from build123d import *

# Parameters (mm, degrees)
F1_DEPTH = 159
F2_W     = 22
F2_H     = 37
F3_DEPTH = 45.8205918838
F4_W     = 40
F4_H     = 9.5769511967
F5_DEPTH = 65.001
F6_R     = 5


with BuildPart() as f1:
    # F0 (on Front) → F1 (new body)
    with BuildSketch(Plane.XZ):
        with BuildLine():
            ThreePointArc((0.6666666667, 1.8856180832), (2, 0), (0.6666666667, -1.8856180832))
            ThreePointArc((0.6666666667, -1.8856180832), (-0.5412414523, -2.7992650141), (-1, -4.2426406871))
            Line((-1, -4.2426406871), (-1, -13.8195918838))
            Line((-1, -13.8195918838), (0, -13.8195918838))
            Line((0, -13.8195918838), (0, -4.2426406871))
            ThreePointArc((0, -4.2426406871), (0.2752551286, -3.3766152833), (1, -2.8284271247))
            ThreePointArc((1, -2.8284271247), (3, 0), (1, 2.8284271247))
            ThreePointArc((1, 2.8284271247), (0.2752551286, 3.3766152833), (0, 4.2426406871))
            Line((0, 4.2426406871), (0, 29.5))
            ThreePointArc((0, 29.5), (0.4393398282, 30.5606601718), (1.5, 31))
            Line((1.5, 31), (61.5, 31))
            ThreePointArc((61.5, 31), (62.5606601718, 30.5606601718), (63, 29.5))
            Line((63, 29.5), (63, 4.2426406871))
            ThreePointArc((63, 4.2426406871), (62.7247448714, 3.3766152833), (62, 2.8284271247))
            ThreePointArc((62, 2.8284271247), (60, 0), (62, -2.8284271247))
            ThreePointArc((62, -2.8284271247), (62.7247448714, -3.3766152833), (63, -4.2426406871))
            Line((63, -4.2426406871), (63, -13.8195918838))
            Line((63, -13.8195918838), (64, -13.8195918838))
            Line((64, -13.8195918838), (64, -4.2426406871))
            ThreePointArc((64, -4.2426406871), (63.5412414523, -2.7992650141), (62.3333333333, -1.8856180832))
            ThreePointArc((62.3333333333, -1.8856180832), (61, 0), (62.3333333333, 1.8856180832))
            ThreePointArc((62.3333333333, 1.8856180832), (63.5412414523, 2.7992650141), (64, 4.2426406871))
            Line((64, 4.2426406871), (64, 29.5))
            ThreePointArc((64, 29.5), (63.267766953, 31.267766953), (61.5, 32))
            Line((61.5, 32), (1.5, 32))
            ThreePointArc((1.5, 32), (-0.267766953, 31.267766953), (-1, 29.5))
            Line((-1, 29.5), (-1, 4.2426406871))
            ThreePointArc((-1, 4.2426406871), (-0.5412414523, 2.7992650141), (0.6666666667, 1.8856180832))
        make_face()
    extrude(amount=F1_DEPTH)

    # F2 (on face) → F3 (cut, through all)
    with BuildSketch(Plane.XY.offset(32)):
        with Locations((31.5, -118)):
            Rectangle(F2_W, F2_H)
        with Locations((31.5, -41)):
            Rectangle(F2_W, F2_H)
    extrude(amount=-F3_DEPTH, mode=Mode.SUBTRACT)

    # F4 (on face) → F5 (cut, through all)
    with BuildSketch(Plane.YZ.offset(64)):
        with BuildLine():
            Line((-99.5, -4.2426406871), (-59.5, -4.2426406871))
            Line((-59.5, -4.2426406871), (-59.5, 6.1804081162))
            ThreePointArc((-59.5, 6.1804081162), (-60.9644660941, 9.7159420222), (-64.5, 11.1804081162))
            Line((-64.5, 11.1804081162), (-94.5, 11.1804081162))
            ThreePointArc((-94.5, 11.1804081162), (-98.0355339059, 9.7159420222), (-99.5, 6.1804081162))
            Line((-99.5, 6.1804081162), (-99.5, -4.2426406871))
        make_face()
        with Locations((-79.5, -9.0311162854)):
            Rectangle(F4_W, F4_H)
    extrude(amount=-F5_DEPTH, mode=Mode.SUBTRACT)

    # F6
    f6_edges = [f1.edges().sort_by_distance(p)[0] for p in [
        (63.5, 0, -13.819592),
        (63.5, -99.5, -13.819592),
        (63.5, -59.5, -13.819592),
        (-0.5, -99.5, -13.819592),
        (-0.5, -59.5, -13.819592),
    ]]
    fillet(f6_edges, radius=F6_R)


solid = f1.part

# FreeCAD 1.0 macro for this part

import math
import FreeCAD as App
import Part
import Sketcher
Q = App.Units.Quantity


def edges_at(feature, points):
    """Names of the edges that pass closest to the given points."""
    edges = feature.Shape.Edges
    near = lambda p: min(range(len(edges)), key=lambda i: edges[i].distToShape(Part.Vertex(*p))[0])
    return sorted({f"Edge{near(p) + 1}" for p in points})


def add_polygon(sketch, points):
    """Adds a closed chain of lines whose ends are joined by coincident constraints."""
    first, n = sketch.GeometryCount, len(points)
    for a, b in zip(points, points[1:] + points[:1]):
        sketch.addGeometry(Part.LineSegment(App.Vector(*a, 0), App.Vector(*b, 0)), False)
    for i in range(n):
        sketch.addConstraint(Sketcher.Constraint("Coincident", first + i, 2, first + (i + 1) % n, 1))

doc = App.newDocument("Part")
body = doc.addObject("PartDesign::Body", "Body")

sketch1 = doc.addObject("Sketcher::SketchObject", "Sketch")
body.addObject(sketch1)
sketch1.AttachmentSupport = (doc.XZ_Plane, [""])
sketch1.MapMode = "FlatFace"
sketch1.addGeometry([
    Part.ArcOfCircle(Part.Circle(App.Vector(0, 0, 0), App.Vector(0, 0, 1), 2), math.radians(-71), math.radians(71)),
    Part.ArcOfCircle(Part.Circle(App.Vector(1.5, -4.2, 0), App.Vector(0, 0, 1), 2.5), math.radians(109), math.radians(180)),
    Part.LineSegment(App.Vector(-1, -4.2, 0), App.Vector(-1, -13.8, 0)),
    Part.LineSegment(App.Vector(-1, -13.8, 0), App.Vector(0, -13.8, 0)),
    Part.LineSegment(App.Vector(0, -13.8, 0), App.Vector(0, -4.2, 0)),
    Part.ArcOfCircle(Part.Circle(App.Vector(1.5, -4.2, 0), App.Vector(0, 0, 1), 1.5), math.radians(109), math.radians(180)),
    Part.ArcOfCircle(Part.Circle(App.Vector(0, 0, 0), App.Vector(0, 0, 1), 3), math.radians(-71), math.radians(71)),
    Part.ArcOfCircle(Part.Circle(App.Vector(1.5, 4.2, 0), App.Vector(0, 0, 1), 1.5), math.radians(180), math.radians(251)),
    Part.LineSegment(App.Vector(0, 4.2, 0), App.Vector(0, 29.5, 0)),
    Part.ArcOfCircle(Part.Circle(App.Vector(1.5, 29.5, 0), App.Vector(0, 0, 1), 1.5), math.radians(90), math.radians(180)),
    Part.LineSegment(App.Vector(1.5, 31, 0), App.Vector(61.5, 31, 0)),
    Part.ArcOfCircle(Part.Circle(App.Vector(61.5, 29.5, 0), App.Vector(0, 0, 1), 1.5), math.radians(0), math.radians(90)),
    Part.LineSegment(App.Vector(63, 29.5, 0), App.Vector(63, 4.2, 0)),
    Part.ArcOfCircle(Part.Circle(App.Vector(61.5, 4.2, 0), App.Vector(0, 0, 1), 1.5), math.radians(-71), math.radians(0)),
    Part.ArcOfCircle(Part.Circle(App.Vector(63, 0, 0), App.Vector(0, 0, 1), 3), math.radians(109), math.radians(251)),
    Part.ArcOfCircle(Part.Circle(App.Vector(61.5, -4.2, 0), App.Vector(0, 0, 1), 1.5), math.radians(0), math.radians(71)),
    Part.LineSegment(App.Vector(63, -4.2, 0), App.Vector(63, -13.8, 0)),
    Part.LineSegment(App.Vector(63, -13.8, 0), App.Vector(64, -13.8, 0)),
    Part.LineSegment(App.Vector(64, -13.8, 0), App.Vector(64, -4.2, 0)),
    Part.ArcOfCircle(Part.Circle(App.Vector(61.5, -4.2, 0), App.Vector(0, 0, 1), 2.5), math.radians(0), math.radians(71)),
    Part.ArcOfCircle(Part.Circle(App.Vector(63, 0, 0), App.Vector(0, 0, 1), 2), math.radians(109), math.radians(251)),
    Part.ArcOfCircle(Part.Circle(App.Vector(61.5, 4.2, 0), App.Vector(0, 0, 1), 2.5), math.radians(-71), math.radians(0)),
    Part.LineSegment(App.Vector(64, 4.2, 0), App.Vector(64, 29.5, 0)),
    Part.ArcOfCircle(Part.Circle(App.Vector(61.5, 29.5, 0), App.Vector(0, 0, 1), 2.5), math.radians(0), math.radians(90)),
    Part.LineSegment(App.Vector(61.5, 32, 0), App.Vector(1.5, 32, 0)),
    Part.ArcOfCircle(Part.Circle(App.Vector(1.5, 29.5, 0), App.Vector(0, 0, 1), 2.5), math.radians(90), math.radians(180)),
    Part.LineSegment(App.Vector(-1, 29.5, 0), App.Vector(-1, 4.2, 0)),
    Part.ArcOfCircle(Part.Circle(App.Vector(1.5, 4.2, 0), App.Vector(0, 0, 1), 2.5), math.radians(180), math.radians(251)),
], False)
sketch1.addConstraint([
    Sketcher.Constraint("Tangent", 0, 1, 1, 1),
    Sketcher.Constraint("Tangent", 1, 2, 2, 1),
    Sketcher.Constraint("Coincident", 2, 2, 3, 1),
    Sketcher.Constraint("Coincident", 3, 2, 4, 1),
    Sketcher.Constraint("Tangent", 4, 2, 5, 2),
    Sketcher.Constraint("Tangent", 5, 1, 6, 1),
    Sketcher.Constraint("Tangent", 6, 2, 7, 2),
    Sketcher.Constraint("Tangent", 7, 1, 8, 1),
    Sketcher.Constraint("Tangent", 8, 2, 9, 2),
    Sketcher.Constraint("Tangent", 9, 1, 10, 1),
    Sketcher.Constraint("Tangent", 10, 2, 11, 2),
    Sketcher.Constraint("Tangent", 11, 1, 12, 1),
    Sketcher.Constraint("Tangent", 12, 2, 13, 2),
    Sketcher.Constraint("Tangent", 13, 1, 14, 1),
    Sketcher.Constraint("Tangent", 14, 2, 15, 2),
    Sketcher.Constraint("Tangent", 15, 1, 16, 1),
    Sketcher.Constraint("Coincident", 16, 2, 17, 1),
    Sketcher.Constraint("Coincident", 17, 2, 18, 1),
    Sketcher.Constraint("Tangent", 18, 2, 19, 1),
    Sketcher.Constraint("Tangent", 19, 2, 20, 2),
    Sketcher.Constraint("Tangent", 20, 1, 21, 1),
    Sketcher.Constraint("Tangent", 21, 2, 22, 1),
    Sketcher.Constraint("Tangent", 22, 2, 23, 1),
    Sketcher.Constraint("Tangent", 23, 2, 24, 1),
    Sketcher.Constraint("Tangent", 24, 2, 25, 1),
    Sketcher.Constraint("Tangent", 25, 2, 26, 1),
    Sketcher.Constraint("Tangent", 26, 2, 27, 1),
    Sketcher.Constraint("Tangent", 27, 2, 0, 2),
    Sketcher.Constraint("Vertical", 2),
    Sketcher.Constraint("Horizontal", 3),
    Sketcher.Constraint("Vertical", 4),
    Sketcher.Constraint("Vertical", 8),
    Sketcher.Constraint("Horizontal", 10),
    Sketcher.Constraint("Vertical", 12),
    Sketcher.Constraint("Vertical", 16),
    Sketcher.Constraint("Horizontal", 17),
    Sketcher.Constraint("Vertical", 18),
    Sketcher.Constraint("Vertical", 22),
    Sketcher.Constraint("Horizontal", 24),
    Sketcher.Constraint("Vertical", 26),
    Sketcher.Constraint("Coincident", 0, 3, -1, 1),
    Sketcher.Constraint("Coincident", 6, 3, -1, 1),
    Sketcher.Constraint("Coincident", 5, 3, 1, 3),
    Sketcher.Constraint("Coincident", 19, 3, 15, 3),
    Sketcher.Constraint("Coincident", 20, 3, 14, 3),
    Sketcher.Constraint("Coincident", 21, 3, 13, 3),
    Sketcher.Constraint("Coincident", 23, 3, 11, 3),
    Sketcher.Constraint("Coincident", 25, 3, 9, 3),
    Sketcher.Constraint("Coincident", 27, 3, 7, 3),
    Sketcher.Constraint("Equal", 5, 7),
    Sketcher.Constraint("Equal", 7, 9),
    Sketcher.Constraint("Equal", 9, 11),
    Sketcher.Constraint("Equal", 11, 13),
    Sketcher.Constraint("Equal", 6, 14),
    Sketcher.Constraint("Equal", 13, 15),
    Sketcher.Constraint("Symmetric", 4, 2, 7, 1, -1, 1),
    Sketcher.Constraint("Symmetric", 13, 3, 15, 3, -1),
    Sketcher.Constraint("Horizontal", 7, 3, 13, 3),
    Sketcher.Constraint("Horizontal", 3, 2, 16, 2),
    Sketcher.Constraint("Radius", 0, Q("2 mm")),
    Sketcher.Constraint("Radius", 6, Q("3 mm")),
    Sketcher.Constraint("Radius", 1, Q("2.5 mm")),
    Sketcher.Constraint("DistanceX", 10, 1, 10, 2, Q("60 mm")),
    Sketcher.Constraint("DistanceY", -1, 1, 9, 1, Q("31 mm")),
    Sketcher.Constraint("DistanceY", 2, 2, 2, 1, Q("9.576951 mm")),
])
pad1 = doc.addObject("PartDesign::Pad", "Pad")
body.addObject(pad1)
pad1.Profile = sketch1
pad1.Length = 159

sketch2 = doc.addObject("Sketcher::SketchObject", "Sketch001")
body.addObject(sketch2)
sketch2.AttachmentSupport = (doc.XY_Plane, [""])
sketch2.MapMode = "FlatFace"
sketch2.AttachmentOffset = App.Placement(App.Vector(0, 0, 32), App.Rotation())
add_polygon(sketch2, [(20, -100), (20, -136), (42, -136), (42, -100)])
add_polygon(sketch2, [(20, -22), (20, -60), (42, -60), (42, -22)])
sketch2.addConstraint([
    Sketcher.Constraint("Vertical", 0),
    Sketcher.Constraint("Horizontal", 1),
    Sketcher.Constraint("Vertical", 2),
    Sketcher.Constraint("Horizontal", 3),
    Sketcher.Constraint("Vertical", 4),
    Sketcher.Constraint("Horizontal", 5),
    Sketcher.Constraint("Vertical", 6),
    Sketcher.Constraint("Horizontal", 7),
    Sketcher.Constraint("Vertical", 3, 2, 4, 2),
    Sketcher.Constraint("Vertical", 2, 2, 5, 2),
    Sketcher.Constraint("Equal", 2, 4),
    Sketcher.Constraint("DistanceX", 1, 1, 1, 2, Q("22 mm")),
    Sketcher.Constraint("DistanceY", 0, 2, 0, 1, Q("37 mm")),
    Sketcher.Constraint("DistanceY", 3, 2, 4, 2, Q("40 mm")),
    Sketcher.Constraint("DistanceX", -1, 1, 0, 2, Q("20.5 mm")),
    Sketcher.Constraint("DistanceY", 0, 2, -1, 1, Q("136.5 mm")),
])
pocket1 = doc.addObject("PartDesign::Pocket", "Pocket")
body.addObject(pocket1)
pocket1.Profile = sketch2
pocket1.Type = "ThroughAll"

sketch3 = doc.addObject("Sketcher::SketchObject", "Sketch002")
body.addObject(sketch3)
sketch3.AttachmentSupport = (doc.YZ_Plane, [""])
sketch3.MapMode = "FlatFace"
sketch3.AttachmentOffset = App.Placement(App.Vector(0, 0, 64), App.Rotation())
sketch3.addGeometry([
    Part.ArcOfCircle(Part.Circle(App.Vector(-64, 6, 0), App.Vector(0, 0, 1), 5), math.radians(0), math.radians(90)),
    Part.LineSegment(App.Vector(-64, 11, 0), App.Vector(-94, 11, 0)),
    Part.ArcOfCircle(Part.Circle(App.Vector(-94, 6, 0), App.Vector(0, 0, 1), 5), math.radians(90), math.radians(180)),
    Part.LineSegment(App.Vector(-100, 6, 0), App.Vector(-100, -14, 0)),
    Part.LineSegment(App.Vector(-100, -14, 0), App.Vector(-60, -14, 0)),
    Part.LineSegment(App.Vector(-60, -14, 0), App.Vector(-60, 6, 0)),
], False)
sketch3.addConstraint([
    Sketcher.Constraint("Tangent", 0, 2, 1, 1),
    Sketcher.Constraint("Tangent", 1, 2, 2, 1),
    Sketcher.Constraint("Tangent", 2, 2, 3, 1),
    Sketcher.Constraint("Coincident", 3, 2, 4, 1),
    Sketcher.Constraint("Coincident", 4, 2, 5, 1),
    Sketcher.Constraint("Tangent", 5, 2, 0, 1),
    Sketcher.Constraint("Horizontal", 1),
    Sketcher.Constraint("Vertical", 3),
    Sketcher.Constraint("Horizontal", 4),
    Sketcher.Constraint("Vertical", 5),
    Sketcher.Constraint("Equal", 0, 2),
    Sketcher.Constraint("Radius", 0, Q("5 mm")),
    Sketcher.Constraint("DistanceX", 1, 2, 1, 1, Q("30 mm")),
    Sketcher.Constraint("DistanceY", 3, 2, 3, 1, Q("20 mm")),
    Sketcher.Constraint("DistanceX", 0, 3, -1, 1, Q("64.5 mm")),
    Sketcher.Constraint("DistanceY", -1, 1, 0, 3, Q("6.180408 mm")),
])
pocket2 = doc.addObject("PartDesign::Pocket", "Pocket001")
body.addObject(pocket2)
pocket2.Profile = sketch3
pocket2.Type = "ThroughAll"
doc.recompute()

fillet = doc.addObject("PartDesign::Fillet", "Fillet")
body.addObject(fillet)
fillet.Base = (pocket2, edges_at(pocket2, [
    (63.5, 0, -13.82),
    (63.5, -99.5, -13.82),
    (63.5, -59.5, -13.82),
    (-0.5, -99.5, -13.82),
    (-0.5, -59.5, -13.82),
]))
fillet.Radius = 5

doc.recompute()
